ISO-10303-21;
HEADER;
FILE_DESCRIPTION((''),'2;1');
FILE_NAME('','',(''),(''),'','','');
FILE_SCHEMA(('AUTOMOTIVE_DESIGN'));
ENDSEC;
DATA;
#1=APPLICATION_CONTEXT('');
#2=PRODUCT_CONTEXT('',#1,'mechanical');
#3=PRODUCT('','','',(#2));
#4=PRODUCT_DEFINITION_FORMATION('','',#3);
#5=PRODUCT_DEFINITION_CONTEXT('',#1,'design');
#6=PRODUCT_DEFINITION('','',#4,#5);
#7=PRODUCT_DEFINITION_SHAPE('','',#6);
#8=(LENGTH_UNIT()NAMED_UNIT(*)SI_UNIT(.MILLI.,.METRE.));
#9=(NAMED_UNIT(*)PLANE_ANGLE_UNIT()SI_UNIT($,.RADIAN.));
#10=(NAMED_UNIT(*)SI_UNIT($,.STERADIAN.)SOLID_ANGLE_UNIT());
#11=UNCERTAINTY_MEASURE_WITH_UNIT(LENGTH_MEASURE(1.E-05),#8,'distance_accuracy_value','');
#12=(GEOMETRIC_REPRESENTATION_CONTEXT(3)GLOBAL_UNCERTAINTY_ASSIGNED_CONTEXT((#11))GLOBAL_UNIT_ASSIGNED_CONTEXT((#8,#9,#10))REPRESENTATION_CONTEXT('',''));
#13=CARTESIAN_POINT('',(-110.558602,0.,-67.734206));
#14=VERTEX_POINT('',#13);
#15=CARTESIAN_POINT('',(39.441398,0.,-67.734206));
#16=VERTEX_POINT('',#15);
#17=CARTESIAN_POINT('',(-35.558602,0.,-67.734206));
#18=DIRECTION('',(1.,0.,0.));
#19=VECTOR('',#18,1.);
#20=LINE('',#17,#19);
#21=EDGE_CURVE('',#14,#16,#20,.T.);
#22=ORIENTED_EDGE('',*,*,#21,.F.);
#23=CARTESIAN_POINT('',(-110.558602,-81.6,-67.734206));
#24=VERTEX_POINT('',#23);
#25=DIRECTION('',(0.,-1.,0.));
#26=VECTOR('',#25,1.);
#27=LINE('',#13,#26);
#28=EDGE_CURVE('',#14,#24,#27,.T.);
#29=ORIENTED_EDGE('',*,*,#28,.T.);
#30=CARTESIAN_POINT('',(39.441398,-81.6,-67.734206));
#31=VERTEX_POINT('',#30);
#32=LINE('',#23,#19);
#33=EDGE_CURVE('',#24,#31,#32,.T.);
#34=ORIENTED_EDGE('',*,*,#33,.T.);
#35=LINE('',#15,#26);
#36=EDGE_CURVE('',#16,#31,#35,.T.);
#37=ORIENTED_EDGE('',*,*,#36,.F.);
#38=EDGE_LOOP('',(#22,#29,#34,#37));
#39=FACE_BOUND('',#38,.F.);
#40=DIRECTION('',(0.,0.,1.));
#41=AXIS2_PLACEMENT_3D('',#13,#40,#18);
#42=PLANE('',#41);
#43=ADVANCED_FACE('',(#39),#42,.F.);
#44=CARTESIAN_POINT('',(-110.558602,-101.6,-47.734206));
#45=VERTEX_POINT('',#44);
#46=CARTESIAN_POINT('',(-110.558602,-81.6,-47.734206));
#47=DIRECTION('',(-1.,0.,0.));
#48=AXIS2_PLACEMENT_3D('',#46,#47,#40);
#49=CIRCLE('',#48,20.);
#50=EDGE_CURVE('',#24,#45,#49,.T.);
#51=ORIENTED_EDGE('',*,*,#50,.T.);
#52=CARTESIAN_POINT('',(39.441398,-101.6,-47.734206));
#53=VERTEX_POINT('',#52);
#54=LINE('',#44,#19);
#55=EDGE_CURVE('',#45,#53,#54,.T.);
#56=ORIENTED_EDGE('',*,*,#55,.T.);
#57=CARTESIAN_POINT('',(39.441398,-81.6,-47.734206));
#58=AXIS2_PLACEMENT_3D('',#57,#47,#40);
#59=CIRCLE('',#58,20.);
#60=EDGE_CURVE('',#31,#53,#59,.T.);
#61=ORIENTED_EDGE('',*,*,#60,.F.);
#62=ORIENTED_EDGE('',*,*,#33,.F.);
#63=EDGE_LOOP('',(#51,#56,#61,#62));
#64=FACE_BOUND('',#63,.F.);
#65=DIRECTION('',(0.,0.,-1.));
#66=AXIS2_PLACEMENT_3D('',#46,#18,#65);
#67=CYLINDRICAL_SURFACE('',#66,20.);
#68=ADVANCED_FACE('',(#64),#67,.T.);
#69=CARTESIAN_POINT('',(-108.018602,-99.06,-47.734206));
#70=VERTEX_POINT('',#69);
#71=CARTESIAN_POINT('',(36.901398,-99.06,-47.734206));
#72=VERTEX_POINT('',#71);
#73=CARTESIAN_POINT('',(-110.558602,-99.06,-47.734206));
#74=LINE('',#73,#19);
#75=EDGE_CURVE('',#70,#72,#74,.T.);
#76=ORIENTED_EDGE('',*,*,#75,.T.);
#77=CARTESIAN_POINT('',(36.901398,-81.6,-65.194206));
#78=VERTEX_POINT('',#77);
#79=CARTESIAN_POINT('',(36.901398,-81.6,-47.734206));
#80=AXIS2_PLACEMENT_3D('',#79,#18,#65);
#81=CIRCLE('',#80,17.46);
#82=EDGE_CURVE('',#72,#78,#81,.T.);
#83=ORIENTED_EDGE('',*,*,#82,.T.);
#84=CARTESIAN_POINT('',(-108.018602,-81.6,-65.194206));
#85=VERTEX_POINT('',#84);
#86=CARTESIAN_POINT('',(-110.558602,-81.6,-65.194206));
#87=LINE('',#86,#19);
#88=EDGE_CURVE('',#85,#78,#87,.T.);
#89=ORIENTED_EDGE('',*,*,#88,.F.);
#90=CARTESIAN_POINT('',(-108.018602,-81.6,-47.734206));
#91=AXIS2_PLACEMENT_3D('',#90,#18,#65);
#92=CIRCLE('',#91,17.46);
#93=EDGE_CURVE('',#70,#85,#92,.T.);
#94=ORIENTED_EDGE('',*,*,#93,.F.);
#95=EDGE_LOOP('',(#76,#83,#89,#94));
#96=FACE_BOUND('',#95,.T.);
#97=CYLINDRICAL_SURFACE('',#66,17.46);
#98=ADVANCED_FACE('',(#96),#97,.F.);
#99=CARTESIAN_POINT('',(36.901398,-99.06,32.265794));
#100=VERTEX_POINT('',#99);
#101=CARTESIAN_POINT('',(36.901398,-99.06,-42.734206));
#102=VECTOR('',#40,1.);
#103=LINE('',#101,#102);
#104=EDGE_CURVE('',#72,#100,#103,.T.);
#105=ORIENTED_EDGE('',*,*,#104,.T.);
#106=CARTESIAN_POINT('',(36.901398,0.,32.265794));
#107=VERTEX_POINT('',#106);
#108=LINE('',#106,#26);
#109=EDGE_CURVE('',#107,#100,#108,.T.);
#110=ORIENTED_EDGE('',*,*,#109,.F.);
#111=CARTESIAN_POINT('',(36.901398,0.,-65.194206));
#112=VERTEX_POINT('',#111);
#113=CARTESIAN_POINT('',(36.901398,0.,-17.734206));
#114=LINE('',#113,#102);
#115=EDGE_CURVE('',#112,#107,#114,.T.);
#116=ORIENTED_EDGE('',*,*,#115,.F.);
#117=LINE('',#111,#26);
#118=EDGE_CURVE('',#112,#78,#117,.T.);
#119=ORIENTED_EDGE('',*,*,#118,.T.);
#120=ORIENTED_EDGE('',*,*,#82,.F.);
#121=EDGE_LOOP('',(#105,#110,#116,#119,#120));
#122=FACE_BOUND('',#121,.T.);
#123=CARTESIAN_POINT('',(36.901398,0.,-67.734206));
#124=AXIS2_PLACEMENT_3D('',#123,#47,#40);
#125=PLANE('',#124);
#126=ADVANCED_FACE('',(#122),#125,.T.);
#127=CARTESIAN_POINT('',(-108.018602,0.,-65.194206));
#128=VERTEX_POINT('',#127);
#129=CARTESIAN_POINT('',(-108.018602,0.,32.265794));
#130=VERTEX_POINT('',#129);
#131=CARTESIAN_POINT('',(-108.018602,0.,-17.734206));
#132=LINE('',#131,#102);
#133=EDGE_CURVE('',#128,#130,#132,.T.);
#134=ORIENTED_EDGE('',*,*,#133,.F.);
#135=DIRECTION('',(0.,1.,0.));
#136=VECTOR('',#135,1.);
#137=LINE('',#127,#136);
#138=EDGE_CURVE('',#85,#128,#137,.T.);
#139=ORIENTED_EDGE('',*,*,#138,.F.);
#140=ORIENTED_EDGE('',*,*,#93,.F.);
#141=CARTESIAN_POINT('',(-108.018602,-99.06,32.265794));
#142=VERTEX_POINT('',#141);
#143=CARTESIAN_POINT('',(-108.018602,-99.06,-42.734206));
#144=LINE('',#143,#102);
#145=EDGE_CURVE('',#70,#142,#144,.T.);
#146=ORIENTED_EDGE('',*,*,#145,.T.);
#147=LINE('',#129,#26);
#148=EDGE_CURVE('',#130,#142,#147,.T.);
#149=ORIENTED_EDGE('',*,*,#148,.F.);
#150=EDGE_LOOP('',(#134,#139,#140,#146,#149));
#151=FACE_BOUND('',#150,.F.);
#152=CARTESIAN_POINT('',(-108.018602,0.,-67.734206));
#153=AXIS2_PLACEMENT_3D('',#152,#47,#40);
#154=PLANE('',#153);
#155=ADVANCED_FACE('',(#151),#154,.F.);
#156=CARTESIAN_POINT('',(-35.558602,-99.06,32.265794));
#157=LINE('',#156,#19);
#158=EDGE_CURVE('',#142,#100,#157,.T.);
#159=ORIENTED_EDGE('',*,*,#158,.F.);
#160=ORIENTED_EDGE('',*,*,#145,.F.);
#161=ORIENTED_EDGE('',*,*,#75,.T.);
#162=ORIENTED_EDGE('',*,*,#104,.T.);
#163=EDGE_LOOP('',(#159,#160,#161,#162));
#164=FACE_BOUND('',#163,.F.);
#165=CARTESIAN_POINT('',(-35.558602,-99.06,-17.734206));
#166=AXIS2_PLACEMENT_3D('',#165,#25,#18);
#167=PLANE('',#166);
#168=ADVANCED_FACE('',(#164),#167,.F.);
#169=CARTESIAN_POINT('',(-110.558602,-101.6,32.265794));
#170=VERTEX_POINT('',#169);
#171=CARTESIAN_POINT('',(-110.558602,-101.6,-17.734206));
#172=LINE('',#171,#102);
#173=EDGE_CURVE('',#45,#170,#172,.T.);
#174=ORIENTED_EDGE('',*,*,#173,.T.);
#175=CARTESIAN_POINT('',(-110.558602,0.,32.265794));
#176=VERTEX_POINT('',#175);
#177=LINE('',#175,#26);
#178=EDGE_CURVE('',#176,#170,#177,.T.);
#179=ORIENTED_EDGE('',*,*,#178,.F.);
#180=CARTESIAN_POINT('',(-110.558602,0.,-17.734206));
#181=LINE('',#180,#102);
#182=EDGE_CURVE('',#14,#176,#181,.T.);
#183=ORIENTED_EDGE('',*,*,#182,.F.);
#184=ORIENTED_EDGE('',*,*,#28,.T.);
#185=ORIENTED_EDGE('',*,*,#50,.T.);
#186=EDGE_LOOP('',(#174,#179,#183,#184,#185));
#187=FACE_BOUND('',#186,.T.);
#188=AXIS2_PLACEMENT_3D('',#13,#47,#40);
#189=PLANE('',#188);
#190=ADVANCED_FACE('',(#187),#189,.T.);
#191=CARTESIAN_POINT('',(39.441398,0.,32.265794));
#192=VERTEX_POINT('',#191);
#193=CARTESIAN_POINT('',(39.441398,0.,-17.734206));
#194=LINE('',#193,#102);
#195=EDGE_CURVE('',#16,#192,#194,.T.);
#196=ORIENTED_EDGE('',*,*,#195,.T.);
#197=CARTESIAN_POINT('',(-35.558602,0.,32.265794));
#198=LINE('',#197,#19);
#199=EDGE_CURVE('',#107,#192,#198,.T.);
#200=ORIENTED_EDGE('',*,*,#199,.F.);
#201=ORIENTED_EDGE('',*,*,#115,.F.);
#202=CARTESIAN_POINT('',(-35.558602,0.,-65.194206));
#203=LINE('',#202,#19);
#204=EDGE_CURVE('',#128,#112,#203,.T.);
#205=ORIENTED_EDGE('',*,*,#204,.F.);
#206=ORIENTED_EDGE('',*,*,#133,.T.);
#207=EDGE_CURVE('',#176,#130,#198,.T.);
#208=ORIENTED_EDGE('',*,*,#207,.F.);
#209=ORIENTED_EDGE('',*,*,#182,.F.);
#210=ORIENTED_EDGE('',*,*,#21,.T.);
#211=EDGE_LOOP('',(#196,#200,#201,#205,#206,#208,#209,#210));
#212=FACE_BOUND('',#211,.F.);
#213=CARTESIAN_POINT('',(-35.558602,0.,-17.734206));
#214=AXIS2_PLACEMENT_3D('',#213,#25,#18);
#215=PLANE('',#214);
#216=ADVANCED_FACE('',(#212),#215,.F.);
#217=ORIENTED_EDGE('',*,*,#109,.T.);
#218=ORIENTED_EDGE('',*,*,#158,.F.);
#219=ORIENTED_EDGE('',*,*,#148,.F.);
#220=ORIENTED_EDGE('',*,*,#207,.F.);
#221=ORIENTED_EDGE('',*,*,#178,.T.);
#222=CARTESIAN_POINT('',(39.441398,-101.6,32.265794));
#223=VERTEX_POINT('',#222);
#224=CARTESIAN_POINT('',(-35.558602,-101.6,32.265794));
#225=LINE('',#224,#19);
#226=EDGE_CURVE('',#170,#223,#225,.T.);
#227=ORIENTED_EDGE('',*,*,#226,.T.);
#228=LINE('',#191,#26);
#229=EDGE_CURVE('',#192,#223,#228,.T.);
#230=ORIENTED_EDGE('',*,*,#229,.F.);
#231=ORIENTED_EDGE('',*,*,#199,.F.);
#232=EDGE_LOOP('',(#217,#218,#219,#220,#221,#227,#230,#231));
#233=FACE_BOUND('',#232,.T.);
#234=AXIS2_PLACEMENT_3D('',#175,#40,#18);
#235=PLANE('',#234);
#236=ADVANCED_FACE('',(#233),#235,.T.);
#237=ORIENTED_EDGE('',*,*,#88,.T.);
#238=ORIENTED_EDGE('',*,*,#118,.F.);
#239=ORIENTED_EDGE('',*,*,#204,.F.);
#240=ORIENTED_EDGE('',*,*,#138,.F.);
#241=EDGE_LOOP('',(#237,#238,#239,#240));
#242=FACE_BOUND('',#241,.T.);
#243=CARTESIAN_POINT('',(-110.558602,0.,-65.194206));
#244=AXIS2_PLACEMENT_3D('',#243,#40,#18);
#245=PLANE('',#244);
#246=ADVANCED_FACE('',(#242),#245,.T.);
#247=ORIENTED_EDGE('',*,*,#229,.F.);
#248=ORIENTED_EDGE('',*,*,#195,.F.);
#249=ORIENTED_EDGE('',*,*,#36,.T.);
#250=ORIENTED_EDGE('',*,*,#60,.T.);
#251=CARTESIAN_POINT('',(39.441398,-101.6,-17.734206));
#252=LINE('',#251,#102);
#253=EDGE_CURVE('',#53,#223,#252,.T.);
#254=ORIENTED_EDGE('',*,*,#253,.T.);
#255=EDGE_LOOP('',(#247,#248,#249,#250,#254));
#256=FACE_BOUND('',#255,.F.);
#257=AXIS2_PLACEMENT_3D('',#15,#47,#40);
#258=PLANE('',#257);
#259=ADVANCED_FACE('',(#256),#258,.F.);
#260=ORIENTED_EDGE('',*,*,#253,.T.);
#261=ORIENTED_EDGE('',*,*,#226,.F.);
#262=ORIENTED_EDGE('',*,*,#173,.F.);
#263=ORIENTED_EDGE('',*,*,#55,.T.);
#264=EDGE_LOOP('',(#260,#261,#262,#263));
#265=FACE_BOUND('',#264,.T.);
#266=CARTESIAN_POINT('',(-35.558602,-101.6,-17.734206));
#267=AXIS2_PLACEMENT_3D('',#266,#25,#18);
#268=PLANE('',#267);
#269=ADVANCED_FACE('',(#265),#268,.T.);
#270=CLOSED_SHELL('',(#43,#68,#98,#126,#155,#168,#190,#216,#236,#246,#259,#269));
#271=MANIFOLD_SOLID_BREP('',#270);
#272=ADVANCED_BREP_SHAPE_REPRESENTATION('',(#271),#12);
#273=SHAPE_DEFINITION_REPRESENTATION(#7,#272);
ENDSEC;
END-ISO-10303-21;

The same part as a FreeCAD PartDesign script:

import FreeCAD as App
import Part
import Sketcher

V = App.Vector


def edges_at(feature, points):
    """Names of the edges that pass closest to the given points."""
    edges = feature.Shape.Edges
    near = lambda p: min(range(len(edges)), key=lambda i: edges[i].distToShape(Part.Vertex(*p))[0])
    return sorted({f"Edge{near(p) + 1}" for p in points})


def faces_at(feature, points):
    """Names of the faces that lie closest to the given points."""
    faces = feature.Shape.Faces
    near = lambda p: min(range(len(faces)), key=lambda i: faces[i].distToShape(Part.Vertex(*p))[0])
    return sorted({f"Face{near(p) + 1}" for p in points})


def add_polygon(sketch, points):
    """Adds a closed chain of lines whose ends are joined by coincident constraints."""
    first, n = sketch.GeometryCount, len(points)
    for a, b in zip(points, points[1:] + points[:1]):
        sketch.addGeometry(Part.LineSegment(App.Vector(*a, 0), App.Vector(*b, 0)), False)
    for i in range(n):
        sketch.addConstraint(Sketcher.Constraint("Coincident", first + i, 2, first + (i + 1) % n, 1))

doc = App.newDocument("Part")
body = doc.addObject("PartDesign::Body", "Body")

sketch1 = body.newObject("Sketcher::SketchObject", "Sketch")
sketch1.AttachmentSupport = (doc.getObject("XZ_Plane"), [""])
sketch1.MapMode = "FlatFace"
add_polygon(sketch1, [(-111, 32), (-111, -68), (39, -68), (39, 32)])
sketch1.addConstraint([
    Sketcher.Constraint("Vertical", 0),
    Sketcher.Constraint("Horizontal", 1),
    Sketcher.Constraint("Vertical", 2),
    Sketcher.Constraint("Horizontal", 3),
    Sketcher.Constraint("DistanceX", 1, 1, 1, 2, 150.0),
    Sketcher.Constraint("DistanceY", 0, 2, 0, 1, 100.0),
    Sketcher.Constraint("DistanceX", 0, 2, -1, 1, 110.558602),
    Sketcher.Constraint("DistanceY", 0, 2, -1, 1, 67.734206),
])
pad1 = body.newObject("PartDesign::Pad", "Pad")
pad1.Profile = sketch1
pad1.Length = 101.6
doc.recompute()

fillet = body.newObject("PartDesign::Fillet", "Fillet")
fillet.Base = (pad1, edges_at(pad1, [(-35.559, -101.6, -67.734)]))
fillet.Radius = 20
doc.recompute()

thickness = body.newObject("PartDesign::Thickness", "Thickness")
thickness.Base = (fillet, faces_at(fillet, [(-35.559, 0, -17.734), (-35.559, -50.8, 32.266)]))
thickness.Value = 2.54
thickness.Reversed = True
thickness.Join = "Arc"

doc.recompute()
